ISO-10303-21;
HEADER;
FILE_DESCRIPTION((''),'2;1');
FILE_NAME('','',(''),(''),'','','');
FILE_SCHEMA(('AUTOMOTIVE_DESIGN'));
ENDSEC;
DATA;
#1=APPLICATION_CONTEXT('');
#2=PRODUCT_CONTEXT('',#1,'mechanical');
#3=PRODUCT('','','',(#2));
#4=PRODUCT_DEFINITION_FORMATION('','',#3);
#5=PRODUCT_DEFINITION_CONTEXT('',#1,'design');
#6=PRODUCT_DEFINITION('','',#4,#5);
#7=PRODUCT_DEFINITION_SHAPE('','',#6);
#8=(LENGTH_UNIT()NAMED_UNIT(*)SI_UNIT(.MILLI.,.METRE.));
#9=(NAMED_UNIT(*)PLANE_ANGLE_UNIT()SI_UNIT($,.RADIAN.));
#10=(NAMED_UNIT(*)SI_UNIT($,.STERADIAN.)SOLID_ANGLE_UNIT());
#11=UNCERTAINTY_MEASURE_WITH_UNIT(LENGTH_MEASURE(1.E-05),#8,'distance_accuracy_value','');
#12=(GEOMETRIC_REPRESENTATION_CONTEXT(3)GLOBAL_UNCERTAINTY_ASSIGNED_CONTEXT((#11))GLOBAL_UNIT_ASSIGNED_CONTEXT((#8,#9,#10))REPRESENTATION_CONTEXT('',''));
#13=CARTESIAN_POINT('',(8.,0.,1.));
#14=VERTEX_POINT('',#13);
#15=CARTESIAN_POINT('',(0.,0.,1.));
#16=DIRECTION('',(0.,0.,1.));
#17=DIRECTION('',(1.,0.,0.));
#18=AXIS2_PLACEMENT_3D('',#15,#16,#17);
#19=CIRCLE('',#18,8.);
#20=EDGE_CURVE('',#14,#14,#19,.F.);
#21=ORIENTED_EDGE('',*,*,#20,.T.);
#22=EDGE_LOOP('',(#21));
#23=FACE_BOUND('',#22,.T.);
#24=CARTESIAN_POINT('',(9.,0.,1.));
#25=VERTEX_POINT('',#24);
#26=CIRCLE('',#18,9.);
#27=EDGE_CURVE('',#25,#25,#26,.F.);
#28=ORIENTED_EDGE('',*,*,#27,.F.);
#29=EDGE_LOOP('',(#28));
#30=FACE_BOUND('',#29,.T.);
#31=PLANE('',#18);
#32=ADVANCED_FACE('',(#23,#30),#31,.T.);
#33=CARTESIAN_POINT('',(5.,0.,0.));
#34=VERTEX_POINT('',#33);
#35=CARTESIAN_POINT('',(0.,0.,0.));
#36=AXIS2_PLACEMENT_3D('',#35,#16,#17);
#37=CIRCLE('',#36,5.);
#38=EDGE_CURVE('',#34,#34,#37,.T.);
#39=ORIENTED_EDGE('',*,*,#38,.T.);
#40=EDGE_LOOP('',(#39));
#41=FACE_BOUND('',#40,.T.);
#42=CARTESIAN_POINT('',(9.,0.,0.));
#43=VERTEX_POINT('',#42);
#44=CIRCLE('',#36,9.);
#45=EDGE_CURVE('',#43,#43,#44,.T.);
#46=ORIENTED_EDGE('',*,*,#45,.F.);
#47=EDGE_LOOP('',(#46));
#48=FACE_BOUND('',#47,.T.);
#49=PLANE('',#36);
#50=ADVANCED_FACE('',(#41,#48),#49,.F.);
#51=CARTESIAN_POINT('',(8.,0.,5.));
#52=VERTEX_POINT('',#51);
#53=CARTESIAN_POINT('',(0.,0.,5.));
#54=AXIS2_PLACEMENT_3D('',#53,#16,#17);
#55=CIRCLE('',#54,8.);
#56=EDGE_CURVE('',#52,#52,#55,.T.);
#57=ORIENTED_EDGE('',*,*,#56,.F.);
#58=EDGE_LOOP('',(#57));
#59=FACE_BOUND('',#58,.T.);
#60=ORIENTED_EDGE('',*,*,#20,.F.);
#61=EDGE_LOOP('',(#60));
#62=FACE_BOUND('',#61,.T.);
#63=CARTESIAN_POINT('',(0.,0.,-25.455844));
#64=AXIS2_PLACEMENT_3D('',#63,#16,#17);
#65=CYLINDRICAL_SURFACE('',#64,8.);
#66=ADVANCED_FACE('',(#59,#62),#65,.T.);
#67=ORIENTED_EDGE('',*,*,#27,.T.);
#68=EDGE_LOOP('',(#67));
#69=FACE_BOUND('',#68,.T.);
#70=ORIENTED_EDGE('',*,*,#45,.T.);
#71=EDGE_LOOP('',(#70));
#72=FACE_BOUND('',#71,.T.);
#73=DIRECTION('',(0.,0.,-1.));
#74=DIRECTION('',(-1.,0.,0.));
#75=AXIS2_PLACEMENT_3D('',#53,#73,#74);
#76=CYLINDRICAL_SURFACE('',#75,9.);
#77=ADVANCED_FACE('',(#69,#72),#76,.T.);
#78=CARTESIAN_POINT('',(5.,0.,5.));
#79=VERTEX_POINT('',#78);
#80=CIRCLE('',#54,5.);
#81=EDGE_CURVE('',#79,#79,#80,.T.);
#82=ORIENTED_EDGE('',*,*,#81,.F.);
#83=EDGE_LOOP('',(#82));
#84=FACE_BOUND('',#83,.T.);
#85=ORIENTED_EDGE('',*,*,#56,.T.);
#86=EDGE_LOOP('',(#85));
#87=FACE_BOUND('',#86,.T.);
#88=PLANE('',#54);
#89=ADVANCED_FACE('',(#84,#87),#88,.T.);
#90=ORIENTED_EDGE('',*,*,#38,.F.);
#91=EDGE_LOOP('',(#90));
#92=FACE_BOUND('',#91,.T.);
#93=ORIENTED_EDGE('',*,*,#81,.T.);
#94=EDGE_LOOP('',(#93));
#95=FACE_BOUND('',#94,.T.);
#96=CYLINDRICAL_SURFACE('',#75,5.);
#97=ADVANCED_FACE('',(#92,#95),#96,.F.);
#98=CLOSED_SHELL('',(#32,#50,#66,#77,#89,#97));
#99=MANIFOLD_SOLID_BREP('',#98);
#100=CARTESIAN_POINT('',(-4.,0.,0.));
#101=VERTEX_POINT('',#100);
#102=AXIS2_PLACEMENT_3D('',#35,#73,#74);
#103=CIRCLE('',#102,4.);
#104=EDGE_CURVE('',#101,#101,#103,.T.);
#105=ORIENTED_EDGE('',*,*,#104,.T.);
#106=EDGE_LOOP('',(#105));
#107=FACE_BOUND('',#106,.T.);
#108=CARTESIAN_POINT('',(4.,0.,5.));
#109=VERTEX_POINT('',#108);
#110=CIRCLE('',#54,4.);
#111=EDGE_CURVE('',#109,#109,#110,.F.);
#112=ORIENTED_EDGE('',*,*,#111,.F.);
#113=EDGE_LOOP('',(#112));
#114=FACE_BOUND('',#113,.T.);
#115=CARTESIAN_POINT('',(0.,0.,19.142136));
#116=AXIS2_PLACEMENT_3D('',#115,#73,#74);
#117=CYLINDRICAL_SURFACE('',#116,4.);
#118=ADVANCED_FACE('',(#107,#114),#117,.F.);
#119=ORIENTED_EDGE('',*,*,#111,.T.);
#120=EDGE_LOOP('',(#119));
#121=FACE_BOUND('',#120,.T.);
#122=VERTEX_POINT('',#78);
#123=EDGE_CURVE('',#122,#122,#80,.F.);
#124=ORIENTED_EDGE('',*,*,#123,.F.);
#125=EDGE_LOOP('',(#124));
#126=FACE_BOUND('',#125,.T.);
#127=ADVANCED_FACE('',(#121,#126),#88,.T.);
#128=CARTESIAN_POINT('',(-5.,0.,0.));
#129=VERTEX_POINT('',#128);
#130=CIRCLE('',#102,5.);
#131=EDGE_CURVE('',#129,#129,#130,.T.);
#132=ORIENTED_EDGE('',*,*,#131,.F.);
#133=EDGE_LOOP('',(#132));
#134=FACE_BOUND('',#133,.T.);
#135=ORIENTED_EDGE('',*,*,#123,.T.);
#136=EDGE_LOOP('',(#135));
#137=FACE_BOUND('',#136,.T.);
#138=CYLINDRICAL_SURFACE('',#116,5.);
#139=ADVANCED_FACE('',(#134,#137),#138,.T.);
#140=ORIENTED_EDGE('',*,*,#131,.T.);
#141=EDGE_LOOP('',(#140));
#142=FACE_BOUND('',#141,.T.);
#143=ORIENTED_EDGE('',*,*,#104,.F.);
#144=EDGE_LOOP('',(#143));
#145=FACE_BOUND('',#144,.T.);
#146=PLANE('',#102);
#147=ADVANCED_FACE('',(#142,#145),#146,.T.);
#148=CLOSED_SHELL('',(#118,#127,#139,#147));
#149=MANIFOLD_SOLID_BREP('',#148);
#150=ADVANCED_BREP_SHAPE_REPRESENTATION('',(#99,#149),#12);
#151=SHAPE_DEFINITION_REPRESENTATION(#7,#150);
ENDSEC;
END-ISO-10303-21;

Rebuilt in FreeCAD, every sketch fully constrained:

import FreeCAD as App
import Part
import Sketcher

V = App.Vector

doc = App.newDocument("Part")
body = doc.addObject("PartDesign::Body", "Body")

# Sketch on XY plane
sketch1 = body.newObject("Sketcher::SketchObject", "Sketch")
sketch1.AttachmentSupport = (doc.getObject("XY_Plane"), [""])
sketch1.MapMode = "FlatFace"
sketch1.addGeometry([
    Part.Circle(V(0, 0, 0), V(0, 0, 1), 9),
    Part.Circle(V(0, 0, 0), V(0, 0, 1), 5),
], False)
sketch1.addConstraint([
    Sketcher.Constraint("Coincident", 0, 3, -1, 1),
    Sketcher.Constraint("Coincident", 1, 3, -1, 1),
    Sketcher.Constraint("Diameter", 0, 18.0),
    Sketcher.Constraint("Diameter", 1, 10.0),
])
pad1 = body.newObject("PartDesign::Pad", "Pad")
pad1.Profile = sketch1
pad1.Length = 5

# Sketch on XY plane
sketch2 = body.newObject("Sketcher::SketchObject", "Sketch001")
sketch2.AttachmentSupport = (doc.getObject("XY_Plane"), [""])
sketch2.MapMode = "FlatFace"
sketch2.AttachmentOffset = App.Placement(V(0, 0, 1), App.Rotation())
sketch2.addGeometry([
    Part.Circle(V(0, 0, 0), V(0, 0, 1), 9),
    Part.Circle(V(0, 0, 0), V(0, 0, 1), 8),
], False)
sketch2.addConstraint([
    Sketcher.Constraint("Coincident", 0, 3, -1, 1),
    Sketcher.Constraint("Coincident", 1, 3, -1, 1),
    Sketcher.Constraint("Diameter", 0, 18.0),
    Sketcher.Constraint("Diameter", 1, 16.0),
])
pocket1 = body.newObject("PartDesign::Pocket", "Pocket")
pocket1.Profile = sketch2
pocket1.Length = 4
pocket1.Reversed = True
body2 = doc.addObject("PartDesign::Body", "Body001")

# Sketch on XY plane
sketch3 = body2.newObject("Sketcher::SketchObject", "Sketch002")
sketch3.AttachmentSupport = (doc.getObject("XY_Plane001"), [""])
sketch3.MapMode = "FlatFace"
sketch3.addGeometry([
    Part.Circle(V(0, 0, 0), V(0, 0, 1), 5),
    Part.Circle(V(0, 0, 0), V(0, 0, 1), 4),
], False)
sketch3.addConstraint([
    Sketcher.Constraint("Coincident", 0, 3, -1, 1),
    Sketcher.Constraint("Coincident", 1, 3, -1, 1),
    Sketcher.Constraint("Diameter", 0, 10.0),
    Sketcher.Constraint("Diameter", 1, 8.0),
])
pad2 = body2.newObject("PartDesign::Pad", "Pad001")
pad2.Profile = sketch3
pad2.Length = 5

doc.recompute()
